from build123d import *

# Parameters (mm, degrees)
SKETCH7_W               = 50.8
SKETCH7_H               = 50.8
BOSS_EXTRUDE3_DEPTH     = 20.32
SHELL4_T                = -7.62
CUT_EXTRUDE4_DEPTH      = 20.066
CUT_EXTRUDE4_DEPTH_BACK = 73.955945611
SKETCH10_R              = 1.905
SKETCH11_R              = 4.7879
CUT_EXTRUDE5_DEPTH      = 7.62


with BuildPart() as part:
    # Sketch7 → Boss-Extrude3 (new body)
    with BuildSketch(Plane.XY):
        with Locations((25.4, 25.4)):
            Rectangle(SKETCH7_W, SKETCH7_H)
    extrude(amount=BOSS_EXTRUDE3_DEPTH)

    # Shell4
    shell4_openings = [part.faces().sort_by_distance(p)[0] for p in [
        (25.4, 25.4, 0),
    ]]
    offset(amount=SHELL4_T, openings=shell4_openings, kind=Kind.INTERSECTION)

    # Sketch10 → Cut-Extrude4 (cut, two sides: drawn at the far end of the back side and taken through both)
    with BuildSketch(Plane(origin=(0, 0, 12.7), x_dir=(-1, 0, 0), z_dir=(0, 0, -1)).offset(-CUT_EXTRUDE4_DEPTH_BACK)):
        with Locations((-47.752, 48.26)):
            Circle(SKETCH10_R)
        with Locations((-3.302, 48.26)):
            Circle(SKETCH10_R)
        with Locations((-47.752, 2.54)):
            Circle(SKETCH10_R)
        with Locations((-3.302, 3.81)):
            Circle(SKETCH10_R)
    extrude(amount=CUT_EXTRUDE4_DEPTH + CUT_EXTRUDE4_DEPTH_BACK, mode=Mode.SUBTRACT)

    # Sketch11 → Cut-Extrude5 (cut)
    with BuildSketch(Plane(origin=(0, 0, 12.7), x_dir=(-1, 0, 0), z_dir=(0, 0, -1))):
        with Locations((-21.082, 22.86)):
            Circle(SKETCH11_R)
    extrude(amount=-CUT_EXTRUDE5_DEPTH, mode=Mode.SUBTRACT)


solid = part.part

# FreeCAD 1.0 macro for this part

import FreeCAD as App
import Part
import Sketcher
from FreeCAD import Vector
Q = App.Units.Quantity


def faces_at(feature, points):
    """Names of the faces that lie closest to the given points."""
    faces = feature.Shape.Faces
    near = lambda p: min(range(len(faces)), key=lambda i: faces[i].distToShape(Part.Vertex(*p))[0])
    return sorted({f"Face{near(p) + 1}" for p in points})


def add_polygon(sketch, points):
    """Adds a closed chain of lines whose ends are joined by coincident constraints."""
    first, n = sketch.GeometryCount, len(points)
    for a, b in zip(points, points[1:] + points[:1]):
        sketch.addGeometry(Part.LineSegment(App.Vector(*a, 0), App.Vector(*b, 0)), False)
    for i in range(n):
        sketch.addConstraint(Sketcher.Constraint("Coincident", first + i, 2, first + (i + 1) % n, 1))

doc = App.newDocument("Part")
body = doc.addObject("PartDesign::Body", "Body")

# Sketch on XY plane
sketch1 = body.newObject("Sketcher::SketchObject", "Sketch")
sketch1.AttachmentSupport = (doc.getObject("XY_Plane"), [""])
sketch1.MapMode = "FlatFace"
add_polygon(sketch1, [(0, 51), (0, 0), (51, 0), (51, 51)])  # lines 0-3
sketch1.addConstraint([
    Sketcher.Constraint("Vertical", 0),
    Sketcher.Constraint("Horizontal", 1),
    Sketcher.Constraint("Vertical", 2),
    Sketcher.Constraint("Horizontal", 3),
    Sketcher.Constraint("Coincident", 0, 2, -1, 1),
    Sketcher.Constraint("Equal", 3, 0),
    Sketcher.Constraint("DistanceX", 1, 1, 1, 2, Q("2 in")),
])
pad1 = body.newObject("PartDesign::Pad", "Pad")
pad1.Profile = sketch1
pad1.Length = Q("0.8 in")
doc.recompute()

thickness = body.newObject("PartDesign::Thickness", "Thickness")
thickness.Base = (pad1, faces_at(pad1, [(25.4, 25.4, 0)]))
thickness.Value = Q("0.3 in")
thickness.Reversed = True
thickness.Join = "Intersection"

# Sketch on XY plane
sketch2 = body.newObject("Sketcher::SketchObject", "Sketch001")
sketch2.AttachmentSupport = (doc.getObject("XY_Plane"), [""])
sketch2.MapMode = "FlatFace"
sketch2.AttachmentOffset = App.Placement(Vector(0, 0, 0.5 * 25.4), App.Rotation())
sketch2.addGeometry([
    Part.Circle(Vector(47.8, 48.3, 0), Vector(0, 0, 1), 1.9),
    Part.Circle(Vector(3.3, 48.3, 0), Vector(0, 0, 1), 1.9),
    Part.Circle(Vector(47.8, 2.5, 0), Vector(0, 0, 1), 1.9),
    Part.Circle(Vector(3.3, 3.8, 0), Vector(0, 0, 1), 1.9),
], False)
sketch2.addConstraint([
    Sketcher.Constraint("Equal", 0, 1),
    Sketcher.Constraint("Equal", 1, 2),
    Sketcher.Constraint("Equal", 2, 3),
    Sketcher.Constraint("Horizontal", 0, 3, 1, 3),
    Sketcher.Constraint("Vertical", 0, 3, 2, 3),
    Sketcher.Constraint("Vertical", 1, 3, 3, 3),
    Sketcher.Constraint("Diameter", 0, Q("0.15 in")),
    Sketcher.Constraint("DistanceY", -1, 1, 0, 3, Q("1.9 in")),
    Sketcher.Constraint("DistanceY", -1, 1, 2, 3, Q("0.1 in")),
    Sketcher.Constraint("DistanceX", -1, 1, 0, 3, Q("1.88 in")),
    Sketcher.Constraint("DistanceX", -1, 1, 1, 3, Q("0.13 in")),
    Sketcher.Constraint("DistanceY", -1, 1, 3, 3, Q("0.15 in")),
])
pocket1 = body.newObject("PartDesign::Pocket", "Pocket")
pocket1.Profile = sketch2
pocket1.Type = "ThroughAll"
pocket1.Midplane = True

# Sketch on XY plane
sketch3 = body.newObject("Sketcher::SketchObject", "Sketch002")
sketch3.AttachmentSupport = (doc.getObject("XY_Plane"), [""])
sketch3.MapMode = "FlatFace"
sketch3.AttachmentOffset = App.Placement(Vector(0, 0, 0.5 * 25.4), App.Rotation())
sketch3.addGeometry(Part.Circle(Vector(21.1, 22.9, 0), Vector(0, 0, 1), 4.8), False)
sketch3.addConstraint([
    Sketcher.Constraint("Diameter", 0, Q("0.377 in")),
    Sketcher.Constraint("DistanceY", -1, 1, 0, 3, Q("0.9 in")),
    Sketcher.Constraint("DistanceX", -1, 1, 0, 3, Q("0.83 in")),
])
pocket2 = body.newObject("PartDesign::Pocket", "Pocket001")
pocket2.Profile = sketch3
pocket2.Length = Q("0.3 in")
pocket2.Reversed = True

doc.recompute()
